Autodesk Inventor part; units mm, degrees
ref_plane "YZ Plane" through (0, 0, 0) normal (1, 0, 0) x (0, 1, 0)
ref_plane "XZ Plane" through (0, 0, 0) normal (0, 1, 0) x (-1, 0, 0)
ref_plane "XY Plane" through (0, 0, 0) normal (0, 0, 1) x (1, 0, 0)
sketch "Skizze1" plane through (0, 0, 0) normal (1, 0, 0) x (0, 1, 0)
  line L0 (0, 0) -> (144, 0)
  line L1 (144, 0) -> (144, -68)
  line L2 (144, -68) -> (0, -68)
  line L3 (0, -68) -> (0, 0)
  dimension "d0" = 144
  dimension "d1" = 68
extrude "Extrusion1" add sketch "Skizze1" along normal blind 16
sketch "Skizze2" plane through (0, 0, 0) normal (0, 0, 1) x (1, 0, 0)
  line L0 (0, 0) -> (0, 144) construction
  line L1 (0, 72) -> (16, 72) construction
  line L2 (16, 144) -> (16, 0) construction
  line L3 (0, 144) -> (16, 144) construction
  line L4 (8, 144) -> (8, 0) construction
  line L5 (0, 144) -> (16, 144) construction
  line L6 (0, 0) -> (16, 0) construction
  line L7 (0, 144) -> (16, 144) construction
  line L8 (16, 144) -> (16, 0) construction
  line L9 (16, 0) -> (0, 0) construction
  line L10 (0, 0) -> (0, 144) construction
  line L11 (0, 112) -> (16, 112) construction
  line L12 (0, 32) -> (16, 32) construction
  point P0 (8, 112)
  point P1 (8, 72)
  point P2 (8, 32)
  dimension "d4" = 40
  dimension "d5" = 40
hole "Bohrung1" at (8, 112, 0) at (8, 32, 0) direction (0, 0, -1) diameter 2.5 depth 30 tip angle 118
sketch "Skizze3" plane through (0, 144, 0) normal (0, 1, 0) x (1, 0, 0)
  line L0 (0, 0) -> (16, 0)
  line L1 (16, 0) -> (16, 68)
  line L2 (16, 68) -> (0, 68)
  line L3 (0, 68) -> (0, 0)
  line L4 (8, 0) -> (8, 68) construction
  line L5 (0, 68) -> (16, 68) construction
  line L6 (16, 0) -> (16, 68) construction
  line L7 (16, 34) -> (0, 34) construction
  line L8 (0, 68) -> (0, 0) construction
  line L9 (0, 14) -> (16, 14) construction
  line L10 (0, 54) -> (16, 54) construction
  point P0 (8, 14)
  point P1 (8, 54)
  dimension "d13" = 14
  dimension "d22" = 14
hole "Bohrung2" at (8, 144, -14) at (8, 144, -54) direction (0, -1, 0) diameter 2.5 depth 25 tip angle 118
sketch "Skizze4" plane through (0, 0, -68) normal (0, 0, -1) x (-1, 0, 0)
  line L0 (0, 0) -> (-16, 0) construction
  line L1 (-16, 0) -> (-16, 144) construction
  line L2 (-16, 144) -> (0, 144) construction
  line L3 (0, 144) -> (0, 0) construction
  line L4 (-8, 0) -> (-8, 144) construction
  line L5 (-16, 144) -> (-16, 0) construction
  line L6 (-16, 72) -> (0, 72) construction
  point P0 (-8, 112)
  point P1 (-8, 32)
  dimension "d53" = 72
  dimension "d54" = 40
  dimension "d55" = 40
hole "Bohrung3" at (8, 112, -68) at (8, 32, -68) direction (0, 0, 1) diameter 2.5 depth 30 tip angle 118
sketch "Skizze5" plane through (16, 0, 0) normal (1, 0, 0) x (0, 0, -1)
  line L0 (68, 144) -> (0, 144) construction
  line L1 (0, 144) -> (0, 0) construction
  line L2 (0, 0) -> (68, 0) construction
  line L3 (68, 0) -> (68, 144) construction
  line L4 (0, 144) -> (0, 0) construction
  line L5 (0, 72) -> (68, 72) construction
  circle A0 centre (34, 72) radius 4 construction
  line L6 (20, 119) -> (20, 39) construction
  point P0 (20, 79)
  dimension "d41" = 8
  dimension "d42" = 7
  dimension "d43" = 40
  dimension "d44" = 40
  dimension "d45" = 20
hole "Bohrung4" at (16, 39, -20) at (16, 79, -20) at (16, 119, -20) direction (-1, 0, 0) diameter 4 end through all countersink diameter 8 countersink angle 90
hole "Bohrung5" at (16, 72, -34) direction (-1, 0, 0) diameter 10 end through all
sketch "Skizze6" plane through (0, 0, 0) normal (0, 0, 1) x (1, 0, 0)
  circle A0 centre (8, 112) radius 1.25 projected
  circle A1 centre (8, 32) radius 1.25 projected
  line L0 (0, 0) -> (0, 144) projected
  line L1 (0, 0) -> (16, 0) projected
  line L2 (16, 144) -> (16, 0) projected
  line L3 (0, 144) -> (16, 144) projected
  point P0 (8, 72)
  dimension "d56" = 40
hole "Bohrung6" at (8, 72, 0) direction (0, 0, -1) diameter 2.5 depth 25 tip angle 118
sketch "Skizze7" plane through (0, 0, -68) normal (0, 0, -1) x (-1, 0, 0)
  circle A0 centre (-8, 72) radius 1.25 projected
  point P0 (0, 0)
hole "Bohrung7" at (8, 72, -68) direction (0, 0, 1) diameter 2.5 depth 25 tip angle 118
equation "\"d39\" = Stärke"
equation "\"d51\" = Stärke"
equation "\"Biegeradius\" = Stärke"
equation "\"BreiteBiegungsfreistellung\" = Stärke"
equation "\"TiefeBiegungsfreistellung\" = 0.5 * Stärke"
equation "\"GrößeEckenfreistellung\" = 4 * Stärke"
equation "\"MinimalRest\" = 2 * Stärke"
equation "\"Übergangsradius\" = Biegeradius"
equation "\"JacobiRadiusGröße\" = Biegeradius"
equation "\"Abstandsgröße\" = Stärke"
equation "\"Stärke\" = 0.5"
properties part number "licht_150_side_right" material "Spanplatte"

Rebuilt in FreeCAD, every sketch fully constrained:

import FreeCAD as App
import Part
import Sketcher
from FreeCAD import Vector
Q = App.Units.Quantity

doc = App.newDocument("Part")
body = doc.addObject("PartDesign::Body", "Body")

# Sketch on YZ plane
sketch1 = body.newObject("Sketcher::SketchObject", "Sketch")
sketch1.AttachmentSupport = (doc.getObject("YZ_Plane"), [""])
sketch1.MapMode = "FlatFace"
sketch1.addGeometry([
    Part.LineSegment(Vector(144, 0, 0), Vector(0, 0, 0)),
    Part.LineSegment(Vector(0, 0, 0), Vector(0, -68, 0)),
    Part.LineSegment(Vector(0, -68, 0), Vector(144, -68, 0)),
    Part.LineSegment(Vector(144, -68, 0), Vector(144, 0, 0)),
], False)
sketch1.addConstraint([
    Sketcher.Constraint("Coincident", 0, 2, 1, 1),
    Sketcher.Constraint("Coincident", 1, 2, 2, 1),
    Sketcher.Constraint("Coincident", 2, 2, 3, 1),
    Sketcher.Constraint("Coincident", 3, 2, 0, 1),
    Sketcher.Constraint("Horizontal", 0),
    Sketcher.Constraint("Vertical", 1),
    Sketcher.Constraint("Horizontal", 2),
    Sketcher.Constraint("Vertical", 3),
    Sketcher.Constraint("Coincident", 0, 2, -1, 1),
    Sketcher.Constraint("DistanceX", 0, 2, 0, 1, Q("144 mm")),
    Sketcher.Constraint("DistanceY", 1, 2, 1, 1, Q("68 mm")),
])
pad1 = body.newObject("PartDesign::Pad", "Pad")
pad1.Profile = sketch1
pad1.Length = 16

# Sketch on XY plane
sketch2 = body.newObject("Sketcher::SketchObject", "Sketch001")
sketch2.AttachmentSupport = (doc.getObject("XY_Plane"), [""])
sketch2.MapMode = "FlatFace"
sketch2.addGeometry([
    Part.Circle(Vector(8, 112, 0), Vector(0, 0, 1), 1.2),
    Part.Circle(Vector(8, 32, 0), Vector(0, 0, 1), 1.2),
], False)
sketch2.addConstraint([
    Sketcher.Constraint("Equal", 0, 1),
    Sketcher.Constraint("Vertical", 0, 3, 1, 3),
    Sketcher.Constraint("Diameter", 0, Q("2.5 mm")),
    Sketcher.Constraint("DistanceX", -1, 1, 0, 3, Q("8 mm")),
    Sketcher.Constraint("DistanceY", -1, 1, 0, 3, Q("112 mm")),
    Sketcher.Constraint("DistanceY", -1, 1, 1, 3, Q("32 mm")),
])
doc.recompute()
hole = body.newObject("PartDesign::Hole", "Hole")
hole.Profile = sketch2
hole.ThreadType = "None"
hole.Diameter = 2.5
hole.DepthType = "Dimension"
hole.Depth = 30
hole.DrillPoint = "Angled"
hole.DrillPointAngle = 118

# Sketch on XZ plane
sketch3 = body.newObject("Sketcher::SketchObject", "Sketch002")
sketch3.AttachmentSupport = (doc.getObject("XZ_Plane"), [""])
sketch3.MapMode = "FlatFace"
sketch3.AttachmentOffset = App.Placement(Vector(0, 0, -144), App.Rotation())
sketch3.addGeometry([
    Part.Circle(Vector(8, -14, 0), Vector(0, 0, 1), 1.2),
    Part.Circle(Vector(8, -54, 0), Vector(0, 0, 1), 1.2),
], False)
sketch3.addConstraint([
    Sketcher.Constraint("Equal", 0, 1),
    Sketcher.Constraint("Vertical", 0, 3, 1, 3),
    Sketcher.Constraint("Diameter", 0, Q("2.5 mm")),
    Sketcher.Constraint("DistanceX", -1, 1, 0, 3, Q("8 mm")),
    Sketcher.Constraint("DistanceY", 0, 3, -1, 1, Q("14 mm")),
    Sketcher.Constraint("DistanceY", 1, 3, -1, 1, Q("54 mm")),
])
doc.recompute()
hole2 = body.newObject("PartDesign::Hole", "Hole001")
hole2.Profile = sketch3
hole2.ThreadType = "None"
hole2.Diameter = 2.5
hole2.DepthType = "Dimension"
hole2.Depth = 25
hole2.DrillPoint = "Angled"
hole2.DrillPointAngle = 118
hole2.Reversed = True

# Sketch on XY plane
sketch4 = body.newObject("Sketcher::SketchObject", "Sketch003")
sketch4.AttachmentSupport = (doc.getObject("XY_Plane"), [""])
sketch4.MapMode = "FlatFace"
sketch4.AttachmentOffset = App.Placement(Vector(0, 0, -68), App.Rotation())
sketch4.addGeometry([
    Part.Circle(Vector(8, 112, 0), Vector(0, 0, 1), 1.2),
    Part.Circle(Vector(8, 32, 0), Vector(0, 0, 1), 1.2),
], False)
sketch4.addConstraint([
    Sketcher.Constraint("Equal", 0, 1),
    Sketcher.Constraint("Vertical", 0, 3, 1, 3),
    Sketcher.Constraint("Diameter", 0, Q("2.5 mm")),
    Sketcher.Constraint("DistanceX", -1, 1, 0, 3, Q("8 mm")),
    Sketcher.Constraint("DistanceY", -1, 1, 0, 3, Q("112 mm")),
    Sketcher.Constraint("DistanceY", -1, 1, 1, 3, Q("32 mm")),
])
doc.recompute()
hole3 = body.newObject("PartDesign::Hole", "Hole002")
hole3.Profile = sketch4
hole3.ThreadType = "None"
hole3.Diameter = 2.5
hole3.DepthType = "Dimension"
hole3.Depth = 30
hole3.DrillPoint = "Angled"
hole3.DrillPointAngle = 118
hole3.Reversed = True

# Sketch on YZ plane
sketch5 = body.newObject("Sketcher::SketchObject", "Sketch004")
sketch5.AttachmentSupport = (doc.getObject("YZ_Plane"), [""])
sketch5.MapMode = "FlatFace"
sketch5.AttachmentOffset = App.Placement(Vector(0, 0, 16), App.Rotation())
sketch5.addGeometry([
    Part.Circle(Vector(39, -20, 0), Vector(0, 0, 1), 2),
    Part.Circle(Vector(79, -20, 0), Vector(0, 0, 1), 2),
    Part.Circle(Vector(119, -20, 0), Vector(0, 0, 1), 2),
], False)
sketch5.addConstraint([
    Sketcher.Constraint("Equal", 0, 1),
    Sketcher.Constraint("Equal", 1, 2),
    Sketcher.Constraint("Horizontal", 0, 3, 1, 3),
    Sketcher.Constraint("Horizontal", 1, 3, 2, 3),
    Sketcher.Constraint("Diameter", 0, Q("4 mm")),
    Sketcher.Constraint("DistanceX", -1, 1, 0, 3, Q("39 mm")),
    Sketcher.Constraint("DistanceY", 0, 3, -1, 1, Q("20 mm")),
    Sketcher.Constraint("DistanceX", -1, 1, 1, 3, Q("79 mm")),
    Sketcher.Constraint("DistanceX", -1, 1, 2, 3, Q("119 mm")),
])
doc.recompute()
hole4 = body.newObject("PartDesign::Hole", "Hole003")
hole4.Profile = sketch5
hole4.ThreadType = "None"
hole4.Diameter = 4
hole4.DepthType = "ThroughAll"
hole4.HoleCutType = "Countersink"
hole4.HoleCutDiameter = 8
hole4.HoleCutCountersinkAngle = 90

# Sketch on YZ plane
sketch6 = body.newObject("Sketcher::SketchObject", "Sketch005")
sketch6.AttachmentSupport = (doc.getObject("YZ_Plane"), [""])
sketch6.MapMode = "FlatFace"
sketch6.AttachmentOffset = App.Placement(Vector(0, 0, 16), App.Rotation())
sketch6.addGeometry(Part.Circle(Vector(72, -34, 0), Vector(0, 0, 1), 5), False)
sketch6.addConstraint([
    Sketcher.Constraint("Diameter", 0, Q("10 mm")),
    Sketcher.Constraint("DistanceX", -1, 1, 0, 3, Q("72 mm")),
    Sketcher.Constraint("DistanceY", 0, 3, -1, 1, Q("34 mm")),
])
doc.recompute()
hole5 = body.newObject("PartDesign::Hole", "Hole004")
hole5.Profile = sketch6
hole5.ThreadType = "None"
hole5.Diameter = 10
hole5.DepthType = "ThroughAll"

# Sketch on XY plane
sketch7 = body.newObject("Sketcher::SketchObject", "Sketch006")
sketch7.AttachmentSupport = (doc.getObject("XY_Plane"), [""])
sketch7.MapMode = "FlatFace"
sketch7.addGeometry(Part.Circle(Vector(8, 72, 0), Vector(0, 0, 1), 1.2), False)
sketch7.addConstraint([
    Sketcher.Constraint("Diameter", 0, Q("2.5 mm")),
    Sketcher.Constraint("DistanceX", -1, 1, 0, 3, Q("8 mm")),
    Sketcher.Constraint("DistanceY", -1, 1, 0, 3, Q("72 mm")),
])
doc.recompute()
hole6 = body.newObject("PartDesign::Hole", "Hole005")
hole6.Profile = sketch7
hole6.ThreadType = "None"
hole6.Diameter = 2.5
hole6.DepthType = "Dimension"
hole6.Depth = 25
hole6.DrillPoint = "Angled"
hole6.DrillPointAngle = 118

# Sketch on XY plane
sketch8 = body.newObject("Sketcher::SketchObject", "Sketch007")
sketch8.AttachmentSupport = (doc.getObject("XY_Plane"), [""])
sketch8.MapMode = "FlatFace"
sketch8.AttachmentOffset = App.Placement(Vector(0, 0, -68), App.Rotation())
sketch8.addGeometry(Part.Circle(Vector(8, 72, 0), Vector(0, 0, 1), 1.2), False)
sketch8.addConstraint([
    Sketcher.Constraint("Diameter", 0, Q("2.5 mm")),
    Sketcher.Constraint("DistanceX", -1, 1, 0, 3, Q("8 mm")),
    Sketcher.Constraint("DistanceY", -1, 1, 0, 3, Q("72 mm")),
])
doc.recompute()
hole7 = body.newObject("PartDesign::Hole", "Hole006")
hole7.Profile = sketch8
hole7.ThreadType = "None"
hole7.Diameter = 2.5
hole7.DepthType = "Dimension"
hole7.Depth = 25
hole7.DrillPoint = "Angled"
hole7.DrillPointAngle = 118
hole7.Reversed = True

doc.recompute()
